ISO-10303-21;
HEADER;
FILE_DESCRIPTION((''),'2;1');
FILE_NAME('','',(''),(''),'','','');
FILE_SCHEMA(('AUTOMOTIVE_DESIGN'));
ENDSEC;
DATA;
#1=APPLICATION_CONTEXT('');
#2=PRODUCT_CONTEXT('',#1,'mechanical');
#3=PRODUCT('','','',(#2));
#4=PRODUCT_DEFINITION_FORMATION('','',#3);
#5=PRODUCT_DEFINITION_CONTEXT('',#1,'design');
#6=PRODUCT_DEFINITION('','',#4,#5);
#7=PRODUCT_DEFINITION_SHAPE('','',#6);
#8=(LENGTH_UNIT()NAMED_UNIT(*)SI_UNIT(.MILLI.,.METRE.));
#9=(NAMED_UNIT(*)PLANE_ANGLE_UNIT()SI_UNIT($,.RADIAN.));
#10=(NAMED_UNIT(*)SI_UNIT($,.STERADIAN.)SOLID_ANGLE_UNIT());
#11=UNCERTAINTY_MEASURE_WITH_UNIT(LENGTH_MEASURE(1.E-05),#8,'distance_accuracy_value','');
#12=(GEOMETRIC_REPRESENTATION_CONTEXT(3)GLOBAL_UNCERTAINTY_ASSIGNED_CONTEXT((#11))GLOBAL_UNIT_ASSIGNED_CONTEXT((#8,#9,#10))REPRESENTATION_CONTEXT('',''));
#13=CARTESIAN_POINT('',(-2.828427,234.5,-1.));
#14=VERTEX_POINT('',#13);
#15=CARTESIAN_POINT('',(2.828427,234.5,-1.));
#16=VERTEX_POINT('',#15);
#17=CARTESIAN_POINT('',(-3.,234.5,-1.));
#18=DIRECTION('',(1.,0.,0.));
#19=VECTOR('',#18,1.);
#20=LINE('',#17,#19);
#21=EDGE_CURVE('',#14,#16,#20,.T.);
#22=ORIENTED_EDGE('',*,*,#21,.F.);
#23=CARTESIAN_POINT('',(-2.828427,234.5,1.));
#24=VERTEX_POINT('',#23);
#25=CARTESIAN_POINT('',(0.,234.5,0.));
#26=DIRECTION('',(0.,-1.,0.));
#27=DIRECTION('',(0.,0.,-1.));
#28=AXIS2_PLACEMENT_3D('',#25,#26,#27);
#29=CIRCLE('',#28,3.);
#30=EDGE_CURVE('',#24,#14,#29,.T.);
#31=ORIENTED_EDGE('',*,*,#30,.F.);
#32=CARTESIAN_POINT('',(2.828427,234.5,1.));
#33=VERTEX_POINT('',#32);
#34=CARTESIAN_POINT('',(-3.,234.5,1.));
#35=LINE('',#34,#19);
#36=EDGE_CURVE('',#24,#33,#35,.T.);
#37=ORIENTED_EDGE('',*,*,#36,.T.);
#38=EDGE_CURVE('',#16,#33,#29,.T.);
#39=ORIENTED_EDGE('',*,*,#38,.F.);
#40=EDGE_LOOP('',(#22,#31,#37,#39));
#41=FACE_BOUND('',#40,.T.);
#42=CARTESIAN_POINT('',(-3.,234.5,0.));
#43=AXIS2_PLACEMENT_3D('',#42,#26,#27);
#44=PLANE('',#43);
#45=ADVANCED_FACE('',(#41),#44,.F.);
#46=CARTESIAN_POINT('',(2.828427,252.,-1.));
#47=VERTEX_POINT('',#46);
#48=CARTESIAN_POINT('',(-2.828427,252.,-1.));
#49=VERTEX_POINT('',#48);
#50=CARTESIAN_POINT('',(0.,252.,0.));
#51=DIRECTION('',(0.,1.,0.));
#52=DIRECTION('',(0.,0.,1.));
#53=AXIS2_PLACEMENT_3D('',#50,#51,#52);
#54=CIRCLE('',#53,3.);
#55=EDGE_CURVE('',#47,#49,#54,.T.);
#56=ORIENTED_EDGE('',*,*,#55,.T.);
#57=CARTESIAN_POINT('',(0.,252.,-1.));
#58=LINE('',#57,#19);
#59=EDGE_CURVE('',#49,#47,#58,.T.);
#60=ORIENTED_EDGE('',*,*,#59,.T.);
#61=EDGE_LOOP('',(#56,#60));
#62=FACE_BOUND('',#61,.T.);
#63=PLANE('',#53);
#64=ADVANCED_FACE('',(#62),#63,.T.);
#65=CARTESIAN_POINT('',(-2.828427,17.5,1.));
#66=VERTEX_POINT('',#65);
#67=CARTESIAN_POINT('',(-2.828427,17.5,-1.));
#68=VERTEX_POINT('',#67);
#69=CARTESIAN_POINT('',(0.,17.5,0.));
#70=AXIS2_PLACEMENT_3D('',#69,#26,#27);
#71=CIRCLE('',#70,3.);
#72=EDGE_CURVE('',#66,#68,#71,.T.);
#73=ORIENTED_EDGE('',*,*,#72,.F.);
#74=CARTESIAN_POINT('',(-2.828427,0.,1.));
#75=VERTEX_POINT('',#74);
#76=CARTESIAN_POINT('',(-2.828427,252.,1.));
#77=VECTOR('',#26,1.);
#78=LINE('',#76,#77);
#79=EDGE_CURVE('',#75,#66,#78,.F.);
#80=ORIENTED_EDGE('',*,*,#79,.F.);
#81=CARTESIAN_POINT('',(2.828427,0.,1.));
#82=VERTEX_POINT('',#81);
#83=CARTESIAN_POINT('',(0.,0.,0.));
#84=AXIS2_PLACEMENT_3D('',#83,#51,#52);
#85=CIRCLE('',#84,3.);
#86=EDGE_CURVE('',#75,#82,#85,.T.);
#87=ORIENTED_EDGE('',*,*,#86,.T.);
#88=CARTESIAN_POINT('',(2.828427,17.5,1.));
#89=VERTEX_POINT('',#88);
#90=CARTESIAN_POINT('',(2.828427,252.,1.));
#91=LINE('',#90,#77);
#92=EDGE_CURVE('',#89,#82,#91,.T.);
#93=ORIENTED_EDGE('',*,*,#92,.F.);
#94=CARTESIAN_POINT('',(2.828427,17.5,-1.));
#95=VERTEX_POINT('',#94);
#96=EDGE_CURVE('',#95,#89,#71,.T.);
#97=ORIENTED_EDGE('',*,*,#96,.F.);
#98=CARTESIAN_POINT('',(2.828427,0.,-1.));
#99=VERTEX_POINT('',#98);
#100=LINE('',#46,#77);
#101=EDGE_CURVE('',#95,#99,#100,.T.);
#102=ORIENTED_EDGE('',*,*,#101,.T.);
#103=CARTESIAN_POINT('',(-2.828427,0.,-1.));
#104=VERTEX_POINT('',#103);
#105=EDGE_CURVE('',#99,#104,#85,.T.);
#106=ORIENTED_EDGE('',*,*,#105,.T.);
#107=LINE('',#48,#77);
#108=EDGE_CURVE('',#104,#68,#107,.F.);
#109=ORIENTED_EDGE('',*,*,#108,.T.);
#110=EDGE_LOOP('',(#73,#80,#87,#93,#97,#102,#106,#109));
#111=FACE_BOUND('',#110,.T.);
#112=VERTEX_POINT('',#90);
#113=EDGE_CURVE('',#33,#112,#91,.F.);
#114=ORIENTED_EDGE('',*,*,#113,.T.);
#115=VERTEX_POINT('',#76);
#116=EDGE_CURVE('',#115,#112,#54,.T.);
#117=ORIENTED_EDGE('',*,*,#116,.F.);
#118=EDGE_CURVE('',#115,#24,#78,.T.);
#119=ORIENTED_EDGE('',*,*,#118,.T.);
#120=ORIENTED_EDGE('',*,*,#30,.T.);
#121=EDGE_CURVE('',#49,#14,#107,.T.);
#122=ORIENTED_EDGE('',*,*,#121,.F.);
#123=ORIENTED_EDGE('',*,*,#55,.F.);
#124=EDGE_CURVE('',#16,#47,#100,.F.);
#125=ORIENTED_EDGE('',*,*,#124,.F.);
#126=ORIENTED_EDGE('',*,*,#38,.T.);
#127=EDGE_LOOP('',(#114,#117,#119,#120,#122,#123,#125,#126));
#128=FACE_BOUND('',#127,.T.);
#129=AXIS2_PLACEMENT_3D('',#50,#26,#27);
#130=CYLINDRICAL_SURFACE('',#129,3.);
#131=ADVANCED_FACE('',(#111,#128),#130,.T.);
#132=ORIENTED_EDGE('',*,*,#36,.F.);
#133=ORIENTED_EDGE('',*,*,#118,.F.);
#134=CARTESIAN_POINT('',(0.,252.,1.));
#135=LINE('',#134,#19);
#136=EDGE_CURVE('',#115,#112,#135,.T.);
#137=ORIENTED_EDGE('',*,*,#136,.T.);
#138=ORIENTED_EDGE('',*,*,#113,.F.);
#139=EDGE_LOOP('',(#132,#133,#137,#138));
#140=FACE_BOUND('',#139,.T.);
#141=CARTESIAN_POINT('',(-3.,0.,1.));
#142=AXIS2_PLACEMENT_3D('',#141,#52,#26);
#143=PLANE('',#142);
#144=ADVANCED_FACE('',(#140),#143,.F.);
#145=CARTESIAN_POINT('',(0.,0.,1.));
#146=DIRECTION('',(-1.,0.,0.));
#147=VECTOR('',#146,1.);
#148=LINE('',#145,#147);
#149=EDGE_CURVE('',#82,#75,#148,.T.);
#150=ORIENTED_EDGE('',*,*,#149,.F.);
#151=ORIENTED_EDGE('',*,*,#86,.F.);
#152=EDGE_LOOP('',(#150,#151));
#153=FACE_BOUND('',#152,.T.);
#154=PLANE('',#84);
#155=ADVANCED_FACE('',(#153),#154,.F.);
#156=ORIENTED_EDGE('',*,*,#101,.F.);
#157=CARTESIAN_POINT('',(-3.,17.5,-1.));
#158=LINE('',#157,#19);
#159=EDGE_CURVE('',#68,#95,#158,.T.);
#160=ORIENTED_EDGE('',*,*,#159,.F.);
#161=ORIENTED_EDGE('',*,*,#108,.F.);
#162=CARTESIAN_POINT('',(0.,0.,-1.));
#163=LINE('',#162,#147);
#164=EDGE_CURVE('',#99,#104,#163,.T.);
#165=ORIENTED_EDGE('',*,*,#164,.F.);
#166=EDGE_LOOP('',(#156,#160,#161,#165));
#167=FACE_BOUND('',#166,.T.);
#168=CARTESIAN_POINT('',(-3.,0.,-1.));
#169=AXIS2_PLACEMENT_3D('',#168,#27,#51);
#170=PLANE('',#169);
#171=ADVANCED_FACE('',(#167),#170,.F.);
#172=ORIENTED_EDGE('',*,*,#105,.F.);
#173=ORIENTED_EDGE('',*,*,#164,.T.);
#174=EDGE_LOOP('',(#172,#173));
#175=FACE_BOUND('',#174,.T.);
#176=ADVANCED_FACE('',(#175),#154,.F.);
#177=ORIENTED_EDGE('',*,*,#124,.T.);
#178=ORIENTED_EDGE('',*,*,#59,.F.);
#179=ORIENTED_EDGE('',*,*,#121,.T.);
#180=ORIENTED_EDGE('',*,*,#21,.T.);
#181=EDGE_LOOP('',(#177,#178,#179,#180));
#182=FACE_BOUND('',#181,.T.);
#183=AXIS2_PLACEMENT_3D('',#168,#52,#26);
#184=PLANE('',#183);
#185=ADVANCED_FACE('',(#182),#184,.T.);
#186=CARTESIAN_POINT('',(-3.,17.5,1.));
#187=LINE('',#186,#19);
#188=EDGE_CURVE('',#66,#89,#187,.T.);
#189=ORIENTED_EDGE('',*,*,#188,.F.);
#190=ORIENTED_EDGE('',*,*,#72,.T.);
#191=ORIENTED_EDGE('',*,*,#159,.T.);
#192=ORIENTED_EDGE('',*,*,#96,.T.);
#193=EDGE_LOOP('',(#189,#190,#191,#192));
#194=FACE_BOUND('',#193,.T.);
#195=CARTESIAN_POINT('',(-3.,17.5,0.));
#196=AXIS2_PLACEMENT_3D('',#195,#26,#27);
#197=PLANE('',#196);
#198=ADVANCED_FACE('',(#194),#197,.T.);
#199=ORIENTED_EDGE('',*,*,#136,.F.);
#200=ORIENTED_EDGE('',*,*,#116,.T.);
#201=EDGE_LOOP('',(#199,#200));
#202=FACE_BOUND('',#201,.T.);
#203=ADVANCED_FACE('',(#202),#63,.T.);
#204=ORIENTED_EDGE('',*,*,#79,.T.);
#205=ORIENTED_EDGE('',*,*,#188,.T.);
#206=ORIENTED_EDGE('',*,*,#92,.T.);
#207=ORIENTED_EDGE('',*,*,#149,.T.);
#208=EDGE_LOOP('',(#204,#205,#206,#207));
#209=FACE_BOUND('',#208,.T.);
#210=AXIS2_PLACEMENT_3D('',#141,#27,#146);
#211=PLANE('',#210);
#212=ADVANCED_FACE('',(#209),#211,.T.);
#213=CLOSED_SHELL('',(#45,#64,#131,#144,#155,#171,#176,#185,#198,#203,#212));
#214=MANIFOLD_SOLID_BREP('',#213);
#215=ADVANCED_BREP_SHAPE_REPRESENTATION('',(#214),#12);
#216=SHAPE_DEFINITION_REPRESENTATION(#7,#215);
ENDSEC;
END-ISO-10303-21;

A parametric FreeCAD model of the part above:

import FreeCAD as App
import Part
import Sketcher
from FreeCAD import Vector
Q = App.Units.Quantity


def add_polygon(sketch, points):
    """Adds a closed chain of lines whose ends are joined by coincident constraints."""
    first, n = sketch.GeometryCount, len(points)
    for a, b in zip(points, points[1:] + points[:1]):
        sketch.addGeometry(Part.LineSegment(App.Vector(*a, 0), App.Vector(*b, 0)), False)
    for i in range(n):
        sketch.addConstraint(Sketcher.Constraint("Coincident", first + i, 2, first + (i + 1) % n, 1))

doc = App.newDocument("Part")
body = doc.addObject("PartDesign::Body", "Body")

# Sketch on XZ plane
sketch1 = doc.addObject("Sketcher::SketchObject", "Sketch")
body.addObject(sketch1)
sketch1.AttachmentSupport = (doc.XZ_Plane, [""])
sketch1.MapMode = "FlatFace"
sketch1.addGeometry(Part.Circle(Vector(0, 0, 0), Vector(0, 0, 1), 3), False)
sketch1.addConstraint([
    Sketcher.Constraint("Coincident", 0, 3, -1, 1),
    Sketcher.Constraint("Diameter", 0, Q("6 mm")),
])
pad1 = doc.addObject("PartDesign::Pad", "Pad")
body.addObject(pad1)
pad1.Profile = sketch1
pad1.Length = 252
pad1.Reversed = True

# Sketch on YZ plane
sketch2 = doc.addObject("Sketcher::SketchObject", "Sketch001")
body.addObject(sketch2)
sketch2.AttachmentSupport = (doc.YZ_Plane, [""])
sketch2.MapMode = "FlatFace"
add_polygon(sketch2, [(252, 1), (234.5, 1), (234.5, -1), (252, -1)])  # lines 0-3
add_polygon(sketch2, [(17.5, 1), (0, 1), (0, -1), (17.5, -1)])  # lines 4-7
sketch2.addConstraint([
    Sketcher.Constraint("Horizontal", 0),
    Sketcher.Constraint("Vertical", 1),
    Sketcher.Constraint("Horizontal", 2),
    Sketcher.Constraint("Vertical", 3),
    Sketcher.Constraint("Horizontal", 4),
    Sketcher.Constraint("Vertical", 5),
    Sketcher.Constraint("Horizontal", 6),
    Sketcher.Constraint("Vertical", 7),
    Sketcher.Constraint("Symmetric", 4, 2, 5, 2, -1, 1),
    Sketcher.Constraint("Horizontal", 3, 2, 4, 2),
    Sketcher.Constraint("Horizontal", 2, 2, 5, 2),
    Sketcher.Constraint("Equal", 2, 4),
    Sketcher.Constraint("DistanceY", 1, 2, 1, 1, Q("2 mm")),
    Sketcher.Constraint("DistanceX", 0, 2, 0, 1, Q("17.5 mm")),
    Sketcher.Constraint("DistanceX", -1, 1, 2, 2, Q("252 mm")),
])
pocket1 = doc.addObject("PartDesign::Pocket", "Pocket")
body.addObject(pocket1)
pocket1.Profile = sketch2
pocket1.Type = "ThroughAll"
pocket1.Midplane = True

doc.recompute()
